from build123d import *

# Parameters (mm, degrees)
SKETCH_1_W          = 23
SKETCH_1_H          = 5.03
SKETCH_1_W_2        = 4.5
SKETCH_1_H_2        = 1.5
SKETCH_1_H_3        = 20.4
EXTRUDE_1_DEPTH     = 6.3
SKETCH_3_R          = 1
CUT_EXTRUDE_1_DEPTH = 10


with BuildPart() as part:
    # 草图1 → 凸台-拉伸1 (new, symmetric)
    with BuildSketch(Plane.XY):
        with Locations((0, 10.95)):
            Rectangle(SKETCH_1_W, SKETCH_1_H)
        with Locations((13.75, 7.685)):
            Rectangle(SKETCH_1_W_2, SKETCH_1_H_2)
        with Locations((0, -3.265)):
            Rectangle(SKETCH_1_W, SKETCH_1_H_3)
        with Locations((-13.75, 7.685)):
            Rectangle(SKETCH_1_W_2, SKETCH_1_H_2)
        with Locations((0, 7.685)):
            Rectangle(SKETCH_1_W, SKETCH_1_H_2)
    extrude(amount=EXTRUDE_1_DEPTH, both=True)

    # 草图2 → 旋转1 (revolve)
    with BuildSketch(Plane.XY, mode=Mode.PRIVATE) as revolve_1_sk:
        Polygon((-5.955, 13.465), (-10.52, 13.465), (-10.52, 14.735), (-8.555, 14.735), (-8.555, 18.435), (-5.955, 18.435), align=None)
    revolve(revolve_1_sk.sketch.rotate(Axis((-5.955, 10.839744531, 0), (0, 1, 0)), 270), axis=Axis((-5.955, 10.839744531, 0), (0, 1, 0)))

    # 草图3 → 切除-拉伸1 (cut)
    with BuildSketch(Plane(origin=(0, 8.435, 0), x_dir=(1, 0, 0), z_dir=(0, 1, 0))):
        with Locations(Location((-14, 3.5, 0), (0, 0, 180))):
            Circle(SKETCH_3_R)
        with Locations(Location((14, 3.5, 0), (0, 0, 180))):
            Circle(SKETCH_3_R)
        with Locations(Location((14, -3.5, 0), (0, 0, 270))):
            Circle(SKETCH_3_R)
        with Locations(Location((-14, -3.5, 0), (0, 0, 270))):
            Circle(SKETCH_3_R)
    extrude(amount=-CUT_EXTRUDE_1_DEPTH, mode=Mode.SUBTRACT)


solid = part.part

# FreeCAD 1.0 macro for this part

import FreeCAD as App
import Part
import Sketcher
from FreeCAD import Vector
Q = App.Units.Quantity

doc = App.newDocument("Part")
params = doc.addObject("Spreadsheet::Sheet", "Params")
for row, (alias, value) in enumerate([
    ("sketch1_width", "23 mm"),
    ("sketch1_width2", "4.5 mm"),
    ("sketch1_height", "1.5 mm"),
    ("sketch1_height2", "20.4 mm"),
    ("sketch1_height3", "5.03 mm"),
    ("pad1_length", "12.6 mm"),
    ("sketch2_width", "2.6 mm"),
    ("sketch2_height", "3.7 mm"),
    ("sketch2_height2", "4.97 mm"),
    ("revolution_angle", "360 deg"),
    ("sketch3_diameter", "2 mm"),
    ("pocket1_length", "10 mm"),
], start=1):
    params.set(f"A{row}", alias)
    params.set(f"B{row}", "=" + value)
    params.setAlias(f"B{row}", alias)

body = doc.addObject("PartDesign::Body", "Body")

# Sketch on XY plane
sketch1 = doc.addObject("Sketcher::SketchObject", "Sketch")
body.addObject(sketch1)
sketch1.AttachmentSupport = (doc.XY_Plane, [""])
sketch1.MapMode = "FlatFace"
sketch1.addGeometry(Part.LineSegment(Vector(-11.5, 13.465, 0), Vector(-11.5, 8.435, 0)), False)
sketch1.addGeometry(Part.LineSegment(Vector(-11.5, 8.435, 0), Vector(-16, 8.435, 0)), False)
sketch1.addGeometry(Part.LineSegment(Vector(-16, 8.435, 0), Vector(-16, 6.935, 0)), False)
sketch1.addGeometry(Part.LineSegment(Vector(-16, 6.935, 0), Vector(-11.5, 6.935, 0)), False)
sketch1.addGeometry(Part.LineSegment(Vector(-11.5, 6.935, 0), Vector(-11.5, -13.465, 0)), False)
sketch1.addGeometry(Part.LineSegment(Vector(-11.5, -13.465, 0), Vector(11.5, -13.465, 0)), False)
sketch1.addGeometry(Part.LineSegment(Vector(11.5, -13.465, 0), Vector(11.5, 6.935, 0)), False)
sketch1.addGeometry(Part.LineSegment(Vector(11.5, 6.935, 0), Vector(16, 6.935, 0)), False)
sketch1.addGeometry(Part.LineSegment(Vector(16, 6.935, 0), Vector(16, 8.435, 0)), False)
sketch1.addGeometry(Part.LineSegment(Vector(16, 8.435, 0), Vector(11.5, 8.435, 0)), False)
sketch1.addGeometry(Part.LineSegment(Vector(11.5, 8.435, 0), Vector(11.5, 13.465, 0)), False)
sketch1.addGeometry(Part.LineSegment(Vector(11.5, 13.465, 0), Vector(-11.5, 13.465, 0)), False)
sketch1.addConstraint(Sketcher.Constraint("Coincident", 0, 2, 1, 1))
sketch1.addConstraint(Sketcher.Constraint("Coincident", 1, 2, 2, 1))
sketch1.addConstraint(Sketcher.Constraint("Coincident", 2, 2, 3, 1))
sketch1.addConstraint(Sketcher.Constraint("Coincident", 3, 2, 4, 1))
sketch1.addConstraint(Sketcher.Constraint("Coincident", 4, 2, 5, 1))
sketch1.addConstraint(Sketcher.Constraint("Coincident", 5, 2, 6, 1))
sketch1.addConstraint(Sketcher.Constraint("Coincident", 6, 2, 7, 1))
sketch1.addConstraint(Sketcher.Constraint("Coincident", 7, 2, 8, 1))
sketch1.addConstraint(Sketcher.Constraint("Coincident", 8, 2, 9, 1))
sketch1.addConstraint(Sketcher.Constraint("Coincident", 9, 2, 10, 1))
sketch1.addConstraint(Sketcher.Constraint("Coincident", 10, 2, 11, 1))
sketch1.addConstraint(Sketcher.Constraint("Coincident", 11, 2, 0, 1))
sketch1.addConstraint(Sketcher.Constraint("Vertical", 0))
sketch1.addConstraint(Sketcher.Constraint("Horizontal", 1))
sketch1.addConstraint(Sketcher.Constraint("Vertical", 2))
sketch1.addConstraint(Sketcher.Constraint("Horizontal", 3))
sketch1.addConstraint(Sketcher.Constraint("Vertical", 4))
sketch1.addConstraint(Sketcher.Constraint("Horizontal", 5))
sketch1.addConstraint(Sketcher.Constraint("Vertical", 6))
sketch1.addConstraint(Sketcher.Constraint("Horizontal", 7))
sketch1.addConstraint(Sketcher.Constraint("Vertical", 8))
sketch1.addConstraint(Sketcher.Constraint("Horizontal", 9))
sketch1.addConstraint(Sketcher.Constraint("Vertical", 10))
sketch1.addConstraint(Sketcher.Constraint("Horizontal", 11))
sketch1.addConstraint(Sketcher.Constraint("Symmetric", 4, 2, 10, 2, -1, 1))
sketch1.addConstraint(Sketcher.Constraint("Symmetric", 3, 2, 6, 2, -2))
sketch1.addConstraint(Sketcher.Constraint("Symmetric", 1, 2, 8, 2, -2))
sketch1.addConstraint(Sketcher.Constraint("Vertical", 0, 2, 3, 2))
sketch1.addConstraint(Sketcher.Constraint("DistanceX", 5, 1, 5, 2, Q("23 mm")))
sketch1.addConstraint(Sketcher.Constraint("DistanceX", 1, 2, 1, 1, Q("4.5 mm")))
sketch1.addConstraint(Sketcher.Constraint("DistanceY", 2, 2, 2, 1, Q("1.5 mm")))
sketch1.addConstraint(Sketcher.Constraint("DistanceY", 4, 2, 4, 1, Q("20.4 mm")))
sketch1.addConstraint(Sketcher.Constraint("DistanceY", 0, 2, 0, 1, Q("5.03 mm")))
sketch1.setExpression("Constraints[28]", "Params.sketch1_width")
sketch1.setExpression("Constraints[29]", "Params.sketch1_width2")
sketch1.setExpression("Constraints[30]", "Params.sketch1_height")
sketch1.setExpression("Constraints[31]", "Params.sketch1_height2")
sketch1.setExpression("Constraints[32]", "Params.sketch1_height3")
pad1 = doc.addObject("PartDesign::Pad", "Pad")
body.addObject(pad1)
pad1.Profile = sketch1
pad1.setExpression("Length", "Params.pad1_length")
pad1.Midplane = True

# Sketch on XY plane
sketch2 = doc.addObject("Sketcher::SketchObject", "Sketch001")
body.addObject(sketch2)
sketch2.AttachmentSupport = (doc.XY_Plane, [""])
sketch2.MapMode = "FlatFace"
sketch2.addGeometry(Part.LineSegment(Vector(-10.52, 13.465, 0), Vector(-5.955, 13.465, 0)), False)
sketch2.addGeometry(Part.LineSegment(Vector(-5.955, 13.465, 0), Vector(-5.955, 18.435, 0)), False)
sketch2.addGeometry(Part.LineSegment(Vector(-5.955, 18.435, 0), Vector(-8.555, 18.435, 0)), False)
sketch2.addGeometry(Part.LineSegment(Vector(-8.555, 18.435, 0), Vector(-8.555, 14.735, 0)), False)
sketch2.addGeometry(Part.LineSegment(Vector(-8.555, 14.735, 0), Vector(-10.52, 14.735, 0)), False)
sketch2.addGeometry(Part.LineSegment(Vector(-10.52, 14.735, 0), Vector(-10.52, 13.465, 0)), False)
sketch2.addGeometry(Part.LineSegment(Vector(-5.955, 13.465, 0), Vector(-5.955, 18.435, 0)), True)  # axis
sketch2.addConstraint(Sketcher.Constraint("Coincident", 0, 2, 1, 1))
sketch2.addConstraint(Sketcher.Constraint("Coincident", 1, 2, 2, 1))
sketch2.addConstraint(Sketcher.Constraint("Coincident", 2, 2, 3, 1))
sketch2.addConstraint(Sketcher.Constraint("Coincident", 3, 2, 4, 1))
sketch2.addConstraint(Sketcher.Constraint("Coincident", 4, 2, 5, 1))
sketch2.addConstraint(Sketcher.Constraint("Coincident", 5, 2, 0, 1))
sketch2.addConstraint(Sketcher.Constraint("Horizontal", 0))
sketch2.addConstraint(Sketcher.Constraint("Vertical", 1))
sketch2.addConstraint(Sketcher.Constraint("Horizontal", 2))
sketch2.addConstraint(Sketcher.Constraint("Vertical", 3))
sketch2.addConstraint(Sketcher.Constraint("Horizontal", 4))
sketch2.addConstraint(Sketcher.Constraint("Vertical", 5))
sketch2.addConstraint(Sketcher.Constraint("Vertical", 6))
sketch2.addConstraint(Sketcher.Constraint("Coincident", 6, 1, 0, 2))
sketch2.addConstraint(Sketcher.Constraint("Horizontal", 2, 2, 6, 2))
sketch2.addConstraint(Sketcher.Constraint("DistanceX", 2, 2, 2, 1, Q("2.6 mm")))
sketch2.addConstraint(Sketcher.Constraint("DistanceY", 3, 2, 3, 1, Q("3.7 mm")))
sketch2.addConstraint(Sketcher.Constraint("DistanceY", 1, 1, 1, 2, Q("4.97 mm")))
sketch2.addConstraint(Sketcher.Constraint("DistanceX", 0, 1, 0, 2, Q("4.565 mm")))
sketch2.addConstraint(Sketcher.Constraint("DistanceX", 4, 2, -1, 1, Q("10.52 mm")))
sketch2.addConstraint(Sketcher.Constraint("DistanceY", -1, 1, 0, 2, Q("13.465 mm")))
sketch2.setExpression("Constraints[15]", "Params.sketch2_width")
sketch2.setExpression("Constraints[16]", "Params.sketch2_height")
sketch2.setExpression("Constraints[17]", "Params.sketch2_height2")
revolution = doc.addObject("PartDesign::Revolution", "Revolution")
body.addObject(revolution)
revolution.Profile = sketch2
revolution.ReferenceAxis = (sketch2, ["Axis0"])
revolution.setExpression("Angle", "Params.revolution_angle")

# Sketch on XZ plane
sketch3 = doc.addObject("Sketcher::SketchObject", "Sketch002")
body.addObject(sketch3)
sketch3.AttachmentSupport = (doc.XZ_Plane, [""])
sketch3.MapMode = "FlatFace"
sketch3.AttachmentOffset = App.Placement(Vector(0, 0, -8.435), App.Rotation())
sketch3.addGeometry(Part.Circle(Vector(-14, -3.5, 0), Vector(0, 0, 1), 1), False)
sketch3.addGeometry(Part.Circle(Vector(14, -3.5, 0), Vector(0, 0, 1), 1), False)
sketch3.addGeometry(Part.Circle(Vector(14, 3.5, 0), Vector(0, 0, 1), 1), False)
sketch3.addGeometry(Part.Circle(Vector(-14, 3.5, 0), Vector(0, 0, 1), 1), False)
sketch3.addConstraint(Sketcher.Constraint("Equal", 0, 1))
sketch3.addConstraint(Sketcher.Constraint("Equal", 1, 2))
sketch3.addConstraint(Sketcher.Constraint("Equal", 2, 3))
sketch3.addConstraint(Sketcher.Constraint("Symmetric", 0, 3, 2, 3, -1, 1))
sketch3.addConstraint(Sketcher.Constraint("Symmetric", 1, 3, 3, 3, -1, 1))
sketch3.addConstraint(Sketcher.Constraint("Symmetric", 0, 3, 1, 3, -2))
sketch3.addConstraint(Sketcher.Constraint("Diameter", 0, Q("2 mm")))
sketch3.addConstraint(Sketcher.Constraint("DistanceX", 0, 3, -1, 1, Q("14 mm")))
sketch3.addConstraint(Sketcher.Constraint("DistanceY", 1, 3, 2, 3, Q("7 mm")))
sketch3.setExpression("Constraints[6]", "Params.sketch3_diameter")
pocket1 = doc.addObject("PartDesign::Pocket", "Pocket")
body.addObject(pocket1)
pocket1.Profile = sketch3
pocket1.setExpression("Length", "Params.pocket1_length")
pocket1.Reversed = True

doc.recompute()
